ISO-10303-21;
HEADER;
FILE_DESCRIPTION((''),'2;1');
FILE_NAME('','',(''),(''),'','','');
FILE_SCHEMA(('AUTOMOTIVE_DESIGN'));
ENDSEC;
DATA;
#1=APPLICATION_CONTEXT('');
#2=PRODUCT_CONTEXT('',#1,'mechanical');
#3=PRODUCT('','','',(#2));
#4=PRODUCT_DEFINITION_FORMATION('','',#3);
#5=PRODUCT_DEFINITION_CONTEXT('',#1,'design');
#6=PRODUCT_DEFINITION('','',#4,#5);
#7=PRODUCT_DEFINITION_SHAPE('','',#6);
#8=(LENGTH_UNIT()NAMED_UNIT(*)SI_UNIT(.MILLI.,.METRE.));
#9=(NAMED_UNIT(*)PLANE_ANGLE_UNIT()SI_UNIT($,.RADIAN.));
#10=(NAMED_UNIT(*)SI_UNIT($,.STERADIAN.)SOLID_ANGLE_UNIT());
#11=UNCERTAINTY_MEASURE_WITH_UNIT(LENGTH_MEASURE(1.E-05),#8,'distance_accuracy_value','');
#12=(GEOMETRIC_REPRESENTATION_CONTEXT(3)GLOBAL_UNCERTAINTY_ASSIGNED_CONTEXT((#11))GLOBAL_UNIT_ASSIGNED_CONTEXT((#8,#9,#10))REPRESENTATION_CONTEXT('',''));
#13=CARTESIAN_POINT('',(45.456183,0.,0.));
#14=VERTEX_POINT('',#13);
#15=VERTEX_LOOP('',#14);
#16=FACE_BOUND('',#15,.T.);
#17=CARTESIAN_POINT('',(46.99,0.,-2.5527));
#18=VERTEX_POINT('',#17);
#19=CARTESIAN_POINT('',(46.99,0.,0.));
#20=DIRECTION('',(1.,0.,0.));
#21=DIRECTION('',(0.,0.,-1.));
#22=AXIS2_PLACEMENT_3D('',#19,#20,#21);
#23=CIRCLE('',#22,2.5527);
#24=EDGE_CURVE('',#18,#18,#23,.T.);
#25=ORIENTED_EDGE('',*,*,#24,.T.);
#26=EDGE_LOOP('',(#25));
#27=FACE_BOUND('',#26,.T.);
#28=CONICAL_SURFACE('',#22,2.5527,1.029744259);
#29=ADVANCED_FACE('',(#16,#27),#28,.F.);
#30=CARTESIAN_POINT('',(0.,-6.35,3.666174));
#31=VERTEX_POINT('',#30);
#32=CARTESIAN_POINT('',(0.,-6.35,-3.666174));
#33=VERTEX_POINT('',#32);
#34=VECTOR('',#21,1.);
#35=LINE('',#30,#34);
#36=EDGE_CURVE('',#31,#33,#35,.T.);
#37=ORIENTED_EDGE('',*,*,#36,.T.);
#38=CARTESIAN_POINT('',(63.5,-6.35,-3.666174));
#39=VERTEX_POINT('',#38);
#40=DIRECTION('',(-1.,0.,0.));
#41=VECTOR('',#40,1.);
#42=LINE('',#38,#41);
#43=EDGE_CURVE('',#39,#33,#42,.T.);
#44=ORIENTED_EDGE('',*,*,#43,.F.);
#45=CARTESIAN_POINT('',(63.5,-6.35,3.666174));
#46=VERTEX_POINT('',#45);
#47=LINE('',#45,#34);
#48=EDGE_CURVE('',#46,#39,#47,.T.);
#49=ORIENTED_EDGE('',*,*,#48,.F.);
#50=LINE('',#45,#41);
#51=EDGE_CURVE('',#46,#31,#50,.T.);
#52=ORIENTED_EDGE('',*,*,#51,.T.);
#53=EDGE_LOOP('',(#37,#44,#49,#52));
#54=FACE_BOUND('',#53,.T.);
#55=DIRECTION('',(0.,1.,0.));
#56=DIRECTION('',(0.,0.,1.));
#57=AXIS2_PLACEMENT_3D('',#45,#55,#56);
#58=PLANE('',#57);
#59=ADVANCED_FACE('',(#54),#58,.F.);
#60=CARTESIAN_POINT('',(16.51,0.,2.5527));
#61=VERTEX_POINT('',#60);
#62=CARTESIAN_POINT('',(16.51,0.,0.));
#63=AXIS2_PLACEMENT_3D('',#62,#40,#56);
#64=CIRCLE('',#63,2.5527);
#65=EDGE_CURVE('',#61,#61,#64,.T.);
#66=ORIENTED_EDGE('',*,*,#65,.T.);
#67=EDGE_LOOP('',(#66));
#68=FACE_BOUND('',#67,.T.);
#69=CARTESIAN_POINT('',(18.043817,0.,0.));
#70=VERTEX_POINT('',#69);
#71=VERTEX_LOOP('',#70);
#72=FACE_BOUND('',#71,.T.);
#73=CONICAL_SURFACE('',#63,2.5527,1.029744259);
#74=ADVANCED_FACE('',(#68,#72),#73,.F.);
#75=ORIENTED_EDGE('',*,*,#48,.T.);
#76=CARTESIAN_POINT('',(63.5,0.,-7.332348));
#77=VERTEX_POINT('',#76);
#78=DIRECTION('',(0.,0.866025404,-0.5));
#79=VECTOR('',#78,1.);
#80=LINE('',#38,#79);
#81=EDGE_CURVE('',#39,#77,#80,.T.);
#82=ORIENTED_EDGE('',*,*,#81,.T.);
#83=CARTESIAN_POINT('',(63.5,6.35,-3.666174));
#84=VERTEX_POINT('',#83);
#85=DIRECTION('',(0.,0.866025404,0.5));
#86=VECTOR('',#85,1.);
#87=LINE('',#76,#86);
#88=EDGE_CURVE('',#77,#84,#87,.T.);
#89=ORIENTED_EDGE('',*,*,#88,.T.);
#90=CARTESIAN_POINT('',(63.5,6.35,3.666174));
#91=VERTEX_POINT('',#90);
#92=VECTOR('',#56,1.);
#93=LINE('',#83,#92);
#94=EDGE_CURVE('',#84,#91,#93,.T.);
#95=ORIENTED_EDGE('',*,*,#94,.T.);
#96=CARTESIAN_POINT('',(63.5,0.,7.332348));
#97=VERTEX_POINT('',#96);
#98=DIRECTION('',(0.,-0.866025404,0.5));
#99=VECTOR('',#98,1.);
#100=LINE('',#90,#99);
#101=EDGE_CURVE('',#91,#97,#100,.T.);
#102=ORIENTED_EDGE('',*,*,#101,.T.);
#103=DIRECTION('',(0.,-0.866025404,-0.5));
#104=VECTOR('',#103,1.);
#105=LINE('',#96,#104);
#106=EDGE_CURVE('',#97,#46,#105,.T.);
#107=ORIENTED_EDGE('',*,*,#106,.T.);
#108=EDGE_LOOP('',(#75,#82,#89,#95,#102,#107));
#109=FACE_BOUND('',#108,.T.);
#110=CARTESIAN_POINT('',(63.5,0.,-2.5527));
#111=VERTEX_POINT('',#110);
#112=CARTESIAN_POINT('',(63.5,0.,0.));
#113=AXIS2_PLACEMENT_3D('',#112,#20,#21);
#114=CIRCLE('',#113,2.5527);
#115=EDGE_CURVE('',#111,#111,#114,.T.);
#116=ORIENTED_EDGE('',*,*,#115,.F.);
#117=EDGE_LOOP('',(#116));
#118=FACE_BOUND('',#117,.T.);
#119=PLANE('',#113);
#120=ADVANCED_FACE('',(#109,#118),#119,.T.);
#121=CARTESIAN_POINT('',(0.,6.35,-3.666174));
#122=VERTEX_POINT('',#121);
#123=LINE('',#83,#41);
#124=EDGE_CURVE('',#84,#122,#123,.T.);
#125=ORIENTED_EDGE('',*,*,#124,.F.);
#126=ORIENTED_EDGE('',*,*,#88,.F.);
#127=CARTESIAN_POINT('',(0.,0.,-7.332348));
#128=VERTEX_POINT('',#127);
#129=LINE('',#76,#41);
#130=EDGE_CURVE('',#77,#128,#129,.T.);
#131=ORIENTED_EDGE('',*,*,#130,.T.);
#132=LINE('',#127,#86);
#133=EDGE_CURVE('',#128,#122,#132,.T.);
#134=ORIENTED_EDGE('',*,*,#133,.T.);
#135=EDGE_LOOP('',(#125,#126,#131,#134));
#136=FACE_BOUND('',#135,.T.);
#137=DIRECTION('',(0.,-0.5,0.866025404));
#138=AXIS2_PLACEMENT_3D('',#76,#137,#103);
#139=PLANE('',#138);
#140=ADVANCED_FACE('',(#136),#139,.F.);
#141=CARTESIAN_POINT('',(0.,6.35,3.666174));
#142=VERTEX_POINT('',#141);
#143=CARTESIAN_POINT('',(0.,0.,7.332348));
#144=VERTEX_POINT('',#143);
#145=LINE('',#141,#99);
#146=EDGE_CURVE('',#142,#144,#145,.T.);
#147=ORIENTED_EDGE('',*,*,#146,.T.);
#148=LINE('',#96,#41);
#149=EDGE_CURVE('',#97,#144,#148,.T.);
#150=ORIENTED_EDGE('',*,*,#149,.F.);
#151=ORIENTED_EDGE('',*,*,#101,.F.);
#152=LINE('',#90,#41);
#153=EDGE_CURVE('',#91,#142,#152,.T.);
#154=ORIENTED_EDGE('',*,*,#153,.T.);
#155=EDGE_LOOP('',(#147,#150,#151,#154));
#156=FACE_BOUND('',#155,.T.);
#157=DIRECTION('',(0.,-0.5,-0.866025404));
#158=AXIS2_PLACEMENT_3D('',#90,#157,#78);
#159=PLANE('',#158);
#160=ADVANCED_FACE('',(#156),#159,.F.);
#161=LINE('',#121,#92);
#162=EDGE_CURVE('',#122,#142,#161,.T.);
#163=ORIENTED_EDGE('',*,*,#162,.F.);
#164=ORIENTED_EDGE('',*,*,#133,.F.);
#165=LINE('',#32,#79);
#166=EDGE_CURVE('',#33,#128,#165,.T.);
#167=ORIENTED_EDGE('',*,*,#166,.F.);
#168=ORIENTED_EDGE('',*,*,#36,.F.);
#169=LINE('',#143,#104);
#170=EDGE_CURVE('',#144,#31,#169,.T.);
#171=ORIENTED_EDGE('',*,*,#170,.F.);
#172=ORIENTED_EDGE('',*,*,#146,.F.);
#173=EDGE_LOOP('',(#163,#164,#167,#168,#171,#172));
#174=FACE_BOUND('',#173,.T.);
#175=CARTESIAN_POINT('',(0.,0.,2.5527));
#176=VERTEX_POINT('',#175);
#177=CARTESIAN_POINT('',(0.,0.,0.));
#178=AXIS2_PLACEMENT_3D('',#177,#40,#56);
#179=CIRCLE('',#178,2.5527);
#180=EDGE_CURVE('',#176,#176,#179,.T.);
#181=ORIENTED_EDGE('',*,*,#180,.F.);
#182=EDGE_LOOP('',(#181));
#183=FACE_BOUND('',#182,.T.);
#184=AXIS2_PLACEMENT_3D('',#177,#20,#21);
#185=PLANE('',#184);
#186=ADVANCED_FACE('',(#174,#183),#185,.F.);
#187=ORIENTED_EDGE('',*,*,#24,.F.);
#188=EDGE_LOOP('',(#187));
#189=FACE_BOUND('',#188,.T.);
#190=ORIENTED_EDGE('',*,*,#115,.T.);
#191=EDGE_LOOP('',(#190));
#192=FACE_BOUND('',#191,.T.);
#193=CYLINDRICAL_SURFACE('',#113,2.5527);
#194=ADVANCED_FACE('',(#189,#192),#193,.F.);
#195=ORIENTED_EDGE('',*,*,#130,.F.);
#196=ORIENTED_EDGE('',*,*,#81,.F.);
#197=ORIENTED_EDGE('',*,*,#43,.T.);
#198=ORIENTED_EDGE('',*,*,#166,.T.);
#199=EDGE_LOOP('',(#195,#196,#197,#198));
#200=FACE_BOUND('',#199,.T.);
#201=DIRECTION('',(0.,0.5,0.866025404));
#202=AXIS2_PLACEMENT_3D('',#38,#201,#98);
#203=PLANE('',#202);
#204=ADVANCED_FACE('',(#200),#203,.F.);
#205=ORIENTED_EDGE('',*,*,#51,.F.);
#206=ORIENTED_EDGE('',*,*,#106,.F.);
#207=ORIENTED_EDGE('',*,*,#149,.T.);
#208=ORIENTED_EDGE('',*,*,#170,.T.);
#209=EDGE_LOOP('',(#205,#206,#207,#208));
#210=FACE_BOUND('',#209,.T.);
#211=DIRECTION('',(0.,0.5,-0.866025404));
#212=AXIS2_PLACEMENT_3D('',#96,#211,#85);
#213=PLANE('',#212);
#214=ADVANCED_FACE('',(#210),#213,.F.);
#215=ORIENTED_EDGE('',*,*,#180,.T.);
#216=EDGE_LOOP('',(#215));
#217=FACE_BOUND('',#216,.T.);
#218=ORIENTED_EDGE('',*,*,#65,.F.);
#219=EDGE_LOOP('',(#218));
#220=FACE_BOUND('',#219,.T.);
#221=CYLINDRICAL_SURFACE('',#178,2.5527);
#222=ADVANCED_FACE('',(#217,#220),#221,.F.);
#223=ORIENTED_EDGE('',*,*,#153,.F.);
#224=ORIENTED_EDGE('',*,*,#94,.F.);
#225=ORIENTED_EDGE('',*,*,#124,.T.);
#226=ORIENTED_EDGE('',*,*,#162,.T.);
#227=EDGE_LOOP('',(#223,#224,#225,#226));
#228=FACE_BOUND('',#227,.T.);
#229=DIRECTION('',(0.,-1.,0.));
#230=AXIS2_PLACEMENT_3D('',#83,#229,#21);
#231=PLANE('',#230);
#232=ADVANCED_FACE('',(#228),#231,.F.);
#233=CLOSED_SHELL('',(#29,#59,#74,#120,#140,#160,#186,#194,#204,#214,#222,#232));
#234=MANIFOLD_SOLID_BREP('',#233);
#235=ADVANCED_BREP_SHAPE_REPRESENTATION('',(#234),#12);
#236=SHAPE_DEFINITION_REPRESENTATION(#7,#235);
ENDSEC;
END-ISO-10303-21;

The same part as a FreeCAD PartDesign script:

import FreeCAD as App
import Part
import Sketcher
from FreeCAD import Vector
Q = App.Units.Quantity

doc = App.newDocument("Part")
params = doc.addObject("Spreadsheet::Sheet", "Params")
for row, (alias, value) in enumerate([
    ("pad1_length", "2.5 in"),
    ("sketch2_diameter", "0.201 in"),
    ("hole_diameter", "0.201 in"),
    ("hole_depth", "0.65 in"),
    ("sketch3_diameter", "0.201 in"),
    ("hole2_diameter", "0.201 in"),
    ("hole2_depth", "0.65 in"),
], start=1):
    params.set(f"A{row}", alias)
    params.set(f"B{row}", "=" + value)
    params.setAlias(f"B{row}", alias)

body = doc.addObject("PartDesign::Body", "Body")

# Sketch on YZ plane
sketch1 = body.newObject("Sketcher::SketchObject", "Sketch")
sketch1.AttachmentSupport = (doc.getObject("YZ_Plane"), [""])
sketch1.MapMode = "FlatFace"
sketch1.addGeometry([
    Part.LineSegment(Vector(0, -7, 0), Vector(6, -4, 0)),  # 0
    Part.LineSegment(Vector(6, -4, 0), Vector(6, 4, 0)),  # 1
    Part.LineSegment(Vector(6, 4, 0), Vector(0, 7, 0)),  # 2
    Part.LineSegment(Vector(0, 7, 0), Vector(-6, 4, 0)),  # 3
    Part.LineSegment(Vector(-6, 4, 0), Vector(-6, -4, 0)),  # 4
    Part.LineSegment(Vector(-6, -4, 0), Vector(0, -7, 0)),  # 5
], False)
sketch1.addConstraint([
    Sketcher.Constraint("Coincident", 0, 2, 1, 1),
    Sketcher.Constraint("Coincident", 1, 2, 2, 1),
    Sketcher.Constraint("Coincident", 2, 2, 3, 1),
    Sketcher.Constraint("Coincident", 3, 2, 4, 1),
    Sketcher.Constraint("Coincident", 4, 2, 5, 1),
    Sketcher.Constraint("Coincident", 5, 2, 0, 1),
    Sketcher.Constraint("Vertical", 1),
    Sketcher.Constraint("Vertical", 4),
    Sketcher.Constraint("Symmetric", 0, 2, 3, 2, -1, 1),
    Sketcher.Constraint("Symmetric", 2, 2, 5, 2, -1, 1),
    Sketcher.Constraint("PointOnObject", 2, 2, -2),
    Sketcher.Constraint("Parallel", 2, 5),
    Sketcher.Constraint("Horizontal", 1, 2, 3, 2),
    Sketcher.Constraint("Angle", 0, Q("30 deg")),
    Sketcher.Constraint("DistanceX", 3, 2, 1, 2, Q("0.5 in")),
    Sketcher.Constraint("DistanceY", 1, 1, 1, 2, Q("7.332348 mm")),
])
pad1 = body.newObject("PartDesign::Pad", "Pad")
pad1.Profile = sketch1
pad1.setExpression("Length", "Params.pad1_length")

# Sketch on YZ plane
sketch2 = body.newObject("Sketcher::SketchObject", "Sketch001")
sketch2.AttachmentSupport = (doc.getObject("YZ_Plane"), [""])
sketch2.MapMode = "FlatFace"
sketch2.AttachmentOffset = App.Placement(Vector(0, 0, 2.5 * 25.4), App.Rotation())
sketch2.addGeometry(Part.Circle(Vector(0, 0, 0), Vector(0, 0, 1), 2.6), False)
sketch2.addConstraint([
    Sketcher.Constraint("Coincident", 0, 3, -1, 1),
    Sketcher.Constraint("Diameter", 0, Q("0.201 in")),
])
sketch2.setExpression("Constraints[1]", "Params.sketch2_diameter")
doc.recompute()
hole = body.newObject("PartDesign::Hole", "Hole")
hole.Profile = sketch2
hole.ThreadType = "None"
hole.setExpression("Diameter", "Params.hole_diameter")
hole.DepthType = "Dimension"
hole.setExpression("Depth", "Params.hole_depth")
hole.DrillPoint = "Angled"
hole.DrillPointAngle = 118

# Sketch on YZ plane
sketch3 = body.newObject("Sketcher::SketchObject", "Sketch002")
sketch3.AttachmentSupport = (doc.getObject("YZ_Plane"), [""])
sketch3.MapMode = "FlatFace"
sketch3.addGeometry(Part.Circle(Vector(0, 0, 0), Vector(0, 0, 1), 2.6), False)
sketch3.addConstraint([
    Sketcher.Constraint("Coincident", 0, 3, -1, 1),
    Sketcher.Constraint("Diameter", 0, Q("0.201 in")),
])
sketch3.setExpression("Constraints[1]", "Params.sketch3_diameter")
doc.recompute()
hole2 = body.newObject("PartDesign::Hole", "Hole001")
hole2.Profile = sketch3
hole2.ThreadType = "None"
hole2.setExpression("Diameter", "Params.hole2_diameter")
hole2.DepthType = "Dimension"
hole2.setExpression("Depth", "Params.hole2_depth")
hole2.DrillPoint = "Angled"
hole2.DrillPointAngle = 118
hole2.Reversed = True

doc.recompute()
